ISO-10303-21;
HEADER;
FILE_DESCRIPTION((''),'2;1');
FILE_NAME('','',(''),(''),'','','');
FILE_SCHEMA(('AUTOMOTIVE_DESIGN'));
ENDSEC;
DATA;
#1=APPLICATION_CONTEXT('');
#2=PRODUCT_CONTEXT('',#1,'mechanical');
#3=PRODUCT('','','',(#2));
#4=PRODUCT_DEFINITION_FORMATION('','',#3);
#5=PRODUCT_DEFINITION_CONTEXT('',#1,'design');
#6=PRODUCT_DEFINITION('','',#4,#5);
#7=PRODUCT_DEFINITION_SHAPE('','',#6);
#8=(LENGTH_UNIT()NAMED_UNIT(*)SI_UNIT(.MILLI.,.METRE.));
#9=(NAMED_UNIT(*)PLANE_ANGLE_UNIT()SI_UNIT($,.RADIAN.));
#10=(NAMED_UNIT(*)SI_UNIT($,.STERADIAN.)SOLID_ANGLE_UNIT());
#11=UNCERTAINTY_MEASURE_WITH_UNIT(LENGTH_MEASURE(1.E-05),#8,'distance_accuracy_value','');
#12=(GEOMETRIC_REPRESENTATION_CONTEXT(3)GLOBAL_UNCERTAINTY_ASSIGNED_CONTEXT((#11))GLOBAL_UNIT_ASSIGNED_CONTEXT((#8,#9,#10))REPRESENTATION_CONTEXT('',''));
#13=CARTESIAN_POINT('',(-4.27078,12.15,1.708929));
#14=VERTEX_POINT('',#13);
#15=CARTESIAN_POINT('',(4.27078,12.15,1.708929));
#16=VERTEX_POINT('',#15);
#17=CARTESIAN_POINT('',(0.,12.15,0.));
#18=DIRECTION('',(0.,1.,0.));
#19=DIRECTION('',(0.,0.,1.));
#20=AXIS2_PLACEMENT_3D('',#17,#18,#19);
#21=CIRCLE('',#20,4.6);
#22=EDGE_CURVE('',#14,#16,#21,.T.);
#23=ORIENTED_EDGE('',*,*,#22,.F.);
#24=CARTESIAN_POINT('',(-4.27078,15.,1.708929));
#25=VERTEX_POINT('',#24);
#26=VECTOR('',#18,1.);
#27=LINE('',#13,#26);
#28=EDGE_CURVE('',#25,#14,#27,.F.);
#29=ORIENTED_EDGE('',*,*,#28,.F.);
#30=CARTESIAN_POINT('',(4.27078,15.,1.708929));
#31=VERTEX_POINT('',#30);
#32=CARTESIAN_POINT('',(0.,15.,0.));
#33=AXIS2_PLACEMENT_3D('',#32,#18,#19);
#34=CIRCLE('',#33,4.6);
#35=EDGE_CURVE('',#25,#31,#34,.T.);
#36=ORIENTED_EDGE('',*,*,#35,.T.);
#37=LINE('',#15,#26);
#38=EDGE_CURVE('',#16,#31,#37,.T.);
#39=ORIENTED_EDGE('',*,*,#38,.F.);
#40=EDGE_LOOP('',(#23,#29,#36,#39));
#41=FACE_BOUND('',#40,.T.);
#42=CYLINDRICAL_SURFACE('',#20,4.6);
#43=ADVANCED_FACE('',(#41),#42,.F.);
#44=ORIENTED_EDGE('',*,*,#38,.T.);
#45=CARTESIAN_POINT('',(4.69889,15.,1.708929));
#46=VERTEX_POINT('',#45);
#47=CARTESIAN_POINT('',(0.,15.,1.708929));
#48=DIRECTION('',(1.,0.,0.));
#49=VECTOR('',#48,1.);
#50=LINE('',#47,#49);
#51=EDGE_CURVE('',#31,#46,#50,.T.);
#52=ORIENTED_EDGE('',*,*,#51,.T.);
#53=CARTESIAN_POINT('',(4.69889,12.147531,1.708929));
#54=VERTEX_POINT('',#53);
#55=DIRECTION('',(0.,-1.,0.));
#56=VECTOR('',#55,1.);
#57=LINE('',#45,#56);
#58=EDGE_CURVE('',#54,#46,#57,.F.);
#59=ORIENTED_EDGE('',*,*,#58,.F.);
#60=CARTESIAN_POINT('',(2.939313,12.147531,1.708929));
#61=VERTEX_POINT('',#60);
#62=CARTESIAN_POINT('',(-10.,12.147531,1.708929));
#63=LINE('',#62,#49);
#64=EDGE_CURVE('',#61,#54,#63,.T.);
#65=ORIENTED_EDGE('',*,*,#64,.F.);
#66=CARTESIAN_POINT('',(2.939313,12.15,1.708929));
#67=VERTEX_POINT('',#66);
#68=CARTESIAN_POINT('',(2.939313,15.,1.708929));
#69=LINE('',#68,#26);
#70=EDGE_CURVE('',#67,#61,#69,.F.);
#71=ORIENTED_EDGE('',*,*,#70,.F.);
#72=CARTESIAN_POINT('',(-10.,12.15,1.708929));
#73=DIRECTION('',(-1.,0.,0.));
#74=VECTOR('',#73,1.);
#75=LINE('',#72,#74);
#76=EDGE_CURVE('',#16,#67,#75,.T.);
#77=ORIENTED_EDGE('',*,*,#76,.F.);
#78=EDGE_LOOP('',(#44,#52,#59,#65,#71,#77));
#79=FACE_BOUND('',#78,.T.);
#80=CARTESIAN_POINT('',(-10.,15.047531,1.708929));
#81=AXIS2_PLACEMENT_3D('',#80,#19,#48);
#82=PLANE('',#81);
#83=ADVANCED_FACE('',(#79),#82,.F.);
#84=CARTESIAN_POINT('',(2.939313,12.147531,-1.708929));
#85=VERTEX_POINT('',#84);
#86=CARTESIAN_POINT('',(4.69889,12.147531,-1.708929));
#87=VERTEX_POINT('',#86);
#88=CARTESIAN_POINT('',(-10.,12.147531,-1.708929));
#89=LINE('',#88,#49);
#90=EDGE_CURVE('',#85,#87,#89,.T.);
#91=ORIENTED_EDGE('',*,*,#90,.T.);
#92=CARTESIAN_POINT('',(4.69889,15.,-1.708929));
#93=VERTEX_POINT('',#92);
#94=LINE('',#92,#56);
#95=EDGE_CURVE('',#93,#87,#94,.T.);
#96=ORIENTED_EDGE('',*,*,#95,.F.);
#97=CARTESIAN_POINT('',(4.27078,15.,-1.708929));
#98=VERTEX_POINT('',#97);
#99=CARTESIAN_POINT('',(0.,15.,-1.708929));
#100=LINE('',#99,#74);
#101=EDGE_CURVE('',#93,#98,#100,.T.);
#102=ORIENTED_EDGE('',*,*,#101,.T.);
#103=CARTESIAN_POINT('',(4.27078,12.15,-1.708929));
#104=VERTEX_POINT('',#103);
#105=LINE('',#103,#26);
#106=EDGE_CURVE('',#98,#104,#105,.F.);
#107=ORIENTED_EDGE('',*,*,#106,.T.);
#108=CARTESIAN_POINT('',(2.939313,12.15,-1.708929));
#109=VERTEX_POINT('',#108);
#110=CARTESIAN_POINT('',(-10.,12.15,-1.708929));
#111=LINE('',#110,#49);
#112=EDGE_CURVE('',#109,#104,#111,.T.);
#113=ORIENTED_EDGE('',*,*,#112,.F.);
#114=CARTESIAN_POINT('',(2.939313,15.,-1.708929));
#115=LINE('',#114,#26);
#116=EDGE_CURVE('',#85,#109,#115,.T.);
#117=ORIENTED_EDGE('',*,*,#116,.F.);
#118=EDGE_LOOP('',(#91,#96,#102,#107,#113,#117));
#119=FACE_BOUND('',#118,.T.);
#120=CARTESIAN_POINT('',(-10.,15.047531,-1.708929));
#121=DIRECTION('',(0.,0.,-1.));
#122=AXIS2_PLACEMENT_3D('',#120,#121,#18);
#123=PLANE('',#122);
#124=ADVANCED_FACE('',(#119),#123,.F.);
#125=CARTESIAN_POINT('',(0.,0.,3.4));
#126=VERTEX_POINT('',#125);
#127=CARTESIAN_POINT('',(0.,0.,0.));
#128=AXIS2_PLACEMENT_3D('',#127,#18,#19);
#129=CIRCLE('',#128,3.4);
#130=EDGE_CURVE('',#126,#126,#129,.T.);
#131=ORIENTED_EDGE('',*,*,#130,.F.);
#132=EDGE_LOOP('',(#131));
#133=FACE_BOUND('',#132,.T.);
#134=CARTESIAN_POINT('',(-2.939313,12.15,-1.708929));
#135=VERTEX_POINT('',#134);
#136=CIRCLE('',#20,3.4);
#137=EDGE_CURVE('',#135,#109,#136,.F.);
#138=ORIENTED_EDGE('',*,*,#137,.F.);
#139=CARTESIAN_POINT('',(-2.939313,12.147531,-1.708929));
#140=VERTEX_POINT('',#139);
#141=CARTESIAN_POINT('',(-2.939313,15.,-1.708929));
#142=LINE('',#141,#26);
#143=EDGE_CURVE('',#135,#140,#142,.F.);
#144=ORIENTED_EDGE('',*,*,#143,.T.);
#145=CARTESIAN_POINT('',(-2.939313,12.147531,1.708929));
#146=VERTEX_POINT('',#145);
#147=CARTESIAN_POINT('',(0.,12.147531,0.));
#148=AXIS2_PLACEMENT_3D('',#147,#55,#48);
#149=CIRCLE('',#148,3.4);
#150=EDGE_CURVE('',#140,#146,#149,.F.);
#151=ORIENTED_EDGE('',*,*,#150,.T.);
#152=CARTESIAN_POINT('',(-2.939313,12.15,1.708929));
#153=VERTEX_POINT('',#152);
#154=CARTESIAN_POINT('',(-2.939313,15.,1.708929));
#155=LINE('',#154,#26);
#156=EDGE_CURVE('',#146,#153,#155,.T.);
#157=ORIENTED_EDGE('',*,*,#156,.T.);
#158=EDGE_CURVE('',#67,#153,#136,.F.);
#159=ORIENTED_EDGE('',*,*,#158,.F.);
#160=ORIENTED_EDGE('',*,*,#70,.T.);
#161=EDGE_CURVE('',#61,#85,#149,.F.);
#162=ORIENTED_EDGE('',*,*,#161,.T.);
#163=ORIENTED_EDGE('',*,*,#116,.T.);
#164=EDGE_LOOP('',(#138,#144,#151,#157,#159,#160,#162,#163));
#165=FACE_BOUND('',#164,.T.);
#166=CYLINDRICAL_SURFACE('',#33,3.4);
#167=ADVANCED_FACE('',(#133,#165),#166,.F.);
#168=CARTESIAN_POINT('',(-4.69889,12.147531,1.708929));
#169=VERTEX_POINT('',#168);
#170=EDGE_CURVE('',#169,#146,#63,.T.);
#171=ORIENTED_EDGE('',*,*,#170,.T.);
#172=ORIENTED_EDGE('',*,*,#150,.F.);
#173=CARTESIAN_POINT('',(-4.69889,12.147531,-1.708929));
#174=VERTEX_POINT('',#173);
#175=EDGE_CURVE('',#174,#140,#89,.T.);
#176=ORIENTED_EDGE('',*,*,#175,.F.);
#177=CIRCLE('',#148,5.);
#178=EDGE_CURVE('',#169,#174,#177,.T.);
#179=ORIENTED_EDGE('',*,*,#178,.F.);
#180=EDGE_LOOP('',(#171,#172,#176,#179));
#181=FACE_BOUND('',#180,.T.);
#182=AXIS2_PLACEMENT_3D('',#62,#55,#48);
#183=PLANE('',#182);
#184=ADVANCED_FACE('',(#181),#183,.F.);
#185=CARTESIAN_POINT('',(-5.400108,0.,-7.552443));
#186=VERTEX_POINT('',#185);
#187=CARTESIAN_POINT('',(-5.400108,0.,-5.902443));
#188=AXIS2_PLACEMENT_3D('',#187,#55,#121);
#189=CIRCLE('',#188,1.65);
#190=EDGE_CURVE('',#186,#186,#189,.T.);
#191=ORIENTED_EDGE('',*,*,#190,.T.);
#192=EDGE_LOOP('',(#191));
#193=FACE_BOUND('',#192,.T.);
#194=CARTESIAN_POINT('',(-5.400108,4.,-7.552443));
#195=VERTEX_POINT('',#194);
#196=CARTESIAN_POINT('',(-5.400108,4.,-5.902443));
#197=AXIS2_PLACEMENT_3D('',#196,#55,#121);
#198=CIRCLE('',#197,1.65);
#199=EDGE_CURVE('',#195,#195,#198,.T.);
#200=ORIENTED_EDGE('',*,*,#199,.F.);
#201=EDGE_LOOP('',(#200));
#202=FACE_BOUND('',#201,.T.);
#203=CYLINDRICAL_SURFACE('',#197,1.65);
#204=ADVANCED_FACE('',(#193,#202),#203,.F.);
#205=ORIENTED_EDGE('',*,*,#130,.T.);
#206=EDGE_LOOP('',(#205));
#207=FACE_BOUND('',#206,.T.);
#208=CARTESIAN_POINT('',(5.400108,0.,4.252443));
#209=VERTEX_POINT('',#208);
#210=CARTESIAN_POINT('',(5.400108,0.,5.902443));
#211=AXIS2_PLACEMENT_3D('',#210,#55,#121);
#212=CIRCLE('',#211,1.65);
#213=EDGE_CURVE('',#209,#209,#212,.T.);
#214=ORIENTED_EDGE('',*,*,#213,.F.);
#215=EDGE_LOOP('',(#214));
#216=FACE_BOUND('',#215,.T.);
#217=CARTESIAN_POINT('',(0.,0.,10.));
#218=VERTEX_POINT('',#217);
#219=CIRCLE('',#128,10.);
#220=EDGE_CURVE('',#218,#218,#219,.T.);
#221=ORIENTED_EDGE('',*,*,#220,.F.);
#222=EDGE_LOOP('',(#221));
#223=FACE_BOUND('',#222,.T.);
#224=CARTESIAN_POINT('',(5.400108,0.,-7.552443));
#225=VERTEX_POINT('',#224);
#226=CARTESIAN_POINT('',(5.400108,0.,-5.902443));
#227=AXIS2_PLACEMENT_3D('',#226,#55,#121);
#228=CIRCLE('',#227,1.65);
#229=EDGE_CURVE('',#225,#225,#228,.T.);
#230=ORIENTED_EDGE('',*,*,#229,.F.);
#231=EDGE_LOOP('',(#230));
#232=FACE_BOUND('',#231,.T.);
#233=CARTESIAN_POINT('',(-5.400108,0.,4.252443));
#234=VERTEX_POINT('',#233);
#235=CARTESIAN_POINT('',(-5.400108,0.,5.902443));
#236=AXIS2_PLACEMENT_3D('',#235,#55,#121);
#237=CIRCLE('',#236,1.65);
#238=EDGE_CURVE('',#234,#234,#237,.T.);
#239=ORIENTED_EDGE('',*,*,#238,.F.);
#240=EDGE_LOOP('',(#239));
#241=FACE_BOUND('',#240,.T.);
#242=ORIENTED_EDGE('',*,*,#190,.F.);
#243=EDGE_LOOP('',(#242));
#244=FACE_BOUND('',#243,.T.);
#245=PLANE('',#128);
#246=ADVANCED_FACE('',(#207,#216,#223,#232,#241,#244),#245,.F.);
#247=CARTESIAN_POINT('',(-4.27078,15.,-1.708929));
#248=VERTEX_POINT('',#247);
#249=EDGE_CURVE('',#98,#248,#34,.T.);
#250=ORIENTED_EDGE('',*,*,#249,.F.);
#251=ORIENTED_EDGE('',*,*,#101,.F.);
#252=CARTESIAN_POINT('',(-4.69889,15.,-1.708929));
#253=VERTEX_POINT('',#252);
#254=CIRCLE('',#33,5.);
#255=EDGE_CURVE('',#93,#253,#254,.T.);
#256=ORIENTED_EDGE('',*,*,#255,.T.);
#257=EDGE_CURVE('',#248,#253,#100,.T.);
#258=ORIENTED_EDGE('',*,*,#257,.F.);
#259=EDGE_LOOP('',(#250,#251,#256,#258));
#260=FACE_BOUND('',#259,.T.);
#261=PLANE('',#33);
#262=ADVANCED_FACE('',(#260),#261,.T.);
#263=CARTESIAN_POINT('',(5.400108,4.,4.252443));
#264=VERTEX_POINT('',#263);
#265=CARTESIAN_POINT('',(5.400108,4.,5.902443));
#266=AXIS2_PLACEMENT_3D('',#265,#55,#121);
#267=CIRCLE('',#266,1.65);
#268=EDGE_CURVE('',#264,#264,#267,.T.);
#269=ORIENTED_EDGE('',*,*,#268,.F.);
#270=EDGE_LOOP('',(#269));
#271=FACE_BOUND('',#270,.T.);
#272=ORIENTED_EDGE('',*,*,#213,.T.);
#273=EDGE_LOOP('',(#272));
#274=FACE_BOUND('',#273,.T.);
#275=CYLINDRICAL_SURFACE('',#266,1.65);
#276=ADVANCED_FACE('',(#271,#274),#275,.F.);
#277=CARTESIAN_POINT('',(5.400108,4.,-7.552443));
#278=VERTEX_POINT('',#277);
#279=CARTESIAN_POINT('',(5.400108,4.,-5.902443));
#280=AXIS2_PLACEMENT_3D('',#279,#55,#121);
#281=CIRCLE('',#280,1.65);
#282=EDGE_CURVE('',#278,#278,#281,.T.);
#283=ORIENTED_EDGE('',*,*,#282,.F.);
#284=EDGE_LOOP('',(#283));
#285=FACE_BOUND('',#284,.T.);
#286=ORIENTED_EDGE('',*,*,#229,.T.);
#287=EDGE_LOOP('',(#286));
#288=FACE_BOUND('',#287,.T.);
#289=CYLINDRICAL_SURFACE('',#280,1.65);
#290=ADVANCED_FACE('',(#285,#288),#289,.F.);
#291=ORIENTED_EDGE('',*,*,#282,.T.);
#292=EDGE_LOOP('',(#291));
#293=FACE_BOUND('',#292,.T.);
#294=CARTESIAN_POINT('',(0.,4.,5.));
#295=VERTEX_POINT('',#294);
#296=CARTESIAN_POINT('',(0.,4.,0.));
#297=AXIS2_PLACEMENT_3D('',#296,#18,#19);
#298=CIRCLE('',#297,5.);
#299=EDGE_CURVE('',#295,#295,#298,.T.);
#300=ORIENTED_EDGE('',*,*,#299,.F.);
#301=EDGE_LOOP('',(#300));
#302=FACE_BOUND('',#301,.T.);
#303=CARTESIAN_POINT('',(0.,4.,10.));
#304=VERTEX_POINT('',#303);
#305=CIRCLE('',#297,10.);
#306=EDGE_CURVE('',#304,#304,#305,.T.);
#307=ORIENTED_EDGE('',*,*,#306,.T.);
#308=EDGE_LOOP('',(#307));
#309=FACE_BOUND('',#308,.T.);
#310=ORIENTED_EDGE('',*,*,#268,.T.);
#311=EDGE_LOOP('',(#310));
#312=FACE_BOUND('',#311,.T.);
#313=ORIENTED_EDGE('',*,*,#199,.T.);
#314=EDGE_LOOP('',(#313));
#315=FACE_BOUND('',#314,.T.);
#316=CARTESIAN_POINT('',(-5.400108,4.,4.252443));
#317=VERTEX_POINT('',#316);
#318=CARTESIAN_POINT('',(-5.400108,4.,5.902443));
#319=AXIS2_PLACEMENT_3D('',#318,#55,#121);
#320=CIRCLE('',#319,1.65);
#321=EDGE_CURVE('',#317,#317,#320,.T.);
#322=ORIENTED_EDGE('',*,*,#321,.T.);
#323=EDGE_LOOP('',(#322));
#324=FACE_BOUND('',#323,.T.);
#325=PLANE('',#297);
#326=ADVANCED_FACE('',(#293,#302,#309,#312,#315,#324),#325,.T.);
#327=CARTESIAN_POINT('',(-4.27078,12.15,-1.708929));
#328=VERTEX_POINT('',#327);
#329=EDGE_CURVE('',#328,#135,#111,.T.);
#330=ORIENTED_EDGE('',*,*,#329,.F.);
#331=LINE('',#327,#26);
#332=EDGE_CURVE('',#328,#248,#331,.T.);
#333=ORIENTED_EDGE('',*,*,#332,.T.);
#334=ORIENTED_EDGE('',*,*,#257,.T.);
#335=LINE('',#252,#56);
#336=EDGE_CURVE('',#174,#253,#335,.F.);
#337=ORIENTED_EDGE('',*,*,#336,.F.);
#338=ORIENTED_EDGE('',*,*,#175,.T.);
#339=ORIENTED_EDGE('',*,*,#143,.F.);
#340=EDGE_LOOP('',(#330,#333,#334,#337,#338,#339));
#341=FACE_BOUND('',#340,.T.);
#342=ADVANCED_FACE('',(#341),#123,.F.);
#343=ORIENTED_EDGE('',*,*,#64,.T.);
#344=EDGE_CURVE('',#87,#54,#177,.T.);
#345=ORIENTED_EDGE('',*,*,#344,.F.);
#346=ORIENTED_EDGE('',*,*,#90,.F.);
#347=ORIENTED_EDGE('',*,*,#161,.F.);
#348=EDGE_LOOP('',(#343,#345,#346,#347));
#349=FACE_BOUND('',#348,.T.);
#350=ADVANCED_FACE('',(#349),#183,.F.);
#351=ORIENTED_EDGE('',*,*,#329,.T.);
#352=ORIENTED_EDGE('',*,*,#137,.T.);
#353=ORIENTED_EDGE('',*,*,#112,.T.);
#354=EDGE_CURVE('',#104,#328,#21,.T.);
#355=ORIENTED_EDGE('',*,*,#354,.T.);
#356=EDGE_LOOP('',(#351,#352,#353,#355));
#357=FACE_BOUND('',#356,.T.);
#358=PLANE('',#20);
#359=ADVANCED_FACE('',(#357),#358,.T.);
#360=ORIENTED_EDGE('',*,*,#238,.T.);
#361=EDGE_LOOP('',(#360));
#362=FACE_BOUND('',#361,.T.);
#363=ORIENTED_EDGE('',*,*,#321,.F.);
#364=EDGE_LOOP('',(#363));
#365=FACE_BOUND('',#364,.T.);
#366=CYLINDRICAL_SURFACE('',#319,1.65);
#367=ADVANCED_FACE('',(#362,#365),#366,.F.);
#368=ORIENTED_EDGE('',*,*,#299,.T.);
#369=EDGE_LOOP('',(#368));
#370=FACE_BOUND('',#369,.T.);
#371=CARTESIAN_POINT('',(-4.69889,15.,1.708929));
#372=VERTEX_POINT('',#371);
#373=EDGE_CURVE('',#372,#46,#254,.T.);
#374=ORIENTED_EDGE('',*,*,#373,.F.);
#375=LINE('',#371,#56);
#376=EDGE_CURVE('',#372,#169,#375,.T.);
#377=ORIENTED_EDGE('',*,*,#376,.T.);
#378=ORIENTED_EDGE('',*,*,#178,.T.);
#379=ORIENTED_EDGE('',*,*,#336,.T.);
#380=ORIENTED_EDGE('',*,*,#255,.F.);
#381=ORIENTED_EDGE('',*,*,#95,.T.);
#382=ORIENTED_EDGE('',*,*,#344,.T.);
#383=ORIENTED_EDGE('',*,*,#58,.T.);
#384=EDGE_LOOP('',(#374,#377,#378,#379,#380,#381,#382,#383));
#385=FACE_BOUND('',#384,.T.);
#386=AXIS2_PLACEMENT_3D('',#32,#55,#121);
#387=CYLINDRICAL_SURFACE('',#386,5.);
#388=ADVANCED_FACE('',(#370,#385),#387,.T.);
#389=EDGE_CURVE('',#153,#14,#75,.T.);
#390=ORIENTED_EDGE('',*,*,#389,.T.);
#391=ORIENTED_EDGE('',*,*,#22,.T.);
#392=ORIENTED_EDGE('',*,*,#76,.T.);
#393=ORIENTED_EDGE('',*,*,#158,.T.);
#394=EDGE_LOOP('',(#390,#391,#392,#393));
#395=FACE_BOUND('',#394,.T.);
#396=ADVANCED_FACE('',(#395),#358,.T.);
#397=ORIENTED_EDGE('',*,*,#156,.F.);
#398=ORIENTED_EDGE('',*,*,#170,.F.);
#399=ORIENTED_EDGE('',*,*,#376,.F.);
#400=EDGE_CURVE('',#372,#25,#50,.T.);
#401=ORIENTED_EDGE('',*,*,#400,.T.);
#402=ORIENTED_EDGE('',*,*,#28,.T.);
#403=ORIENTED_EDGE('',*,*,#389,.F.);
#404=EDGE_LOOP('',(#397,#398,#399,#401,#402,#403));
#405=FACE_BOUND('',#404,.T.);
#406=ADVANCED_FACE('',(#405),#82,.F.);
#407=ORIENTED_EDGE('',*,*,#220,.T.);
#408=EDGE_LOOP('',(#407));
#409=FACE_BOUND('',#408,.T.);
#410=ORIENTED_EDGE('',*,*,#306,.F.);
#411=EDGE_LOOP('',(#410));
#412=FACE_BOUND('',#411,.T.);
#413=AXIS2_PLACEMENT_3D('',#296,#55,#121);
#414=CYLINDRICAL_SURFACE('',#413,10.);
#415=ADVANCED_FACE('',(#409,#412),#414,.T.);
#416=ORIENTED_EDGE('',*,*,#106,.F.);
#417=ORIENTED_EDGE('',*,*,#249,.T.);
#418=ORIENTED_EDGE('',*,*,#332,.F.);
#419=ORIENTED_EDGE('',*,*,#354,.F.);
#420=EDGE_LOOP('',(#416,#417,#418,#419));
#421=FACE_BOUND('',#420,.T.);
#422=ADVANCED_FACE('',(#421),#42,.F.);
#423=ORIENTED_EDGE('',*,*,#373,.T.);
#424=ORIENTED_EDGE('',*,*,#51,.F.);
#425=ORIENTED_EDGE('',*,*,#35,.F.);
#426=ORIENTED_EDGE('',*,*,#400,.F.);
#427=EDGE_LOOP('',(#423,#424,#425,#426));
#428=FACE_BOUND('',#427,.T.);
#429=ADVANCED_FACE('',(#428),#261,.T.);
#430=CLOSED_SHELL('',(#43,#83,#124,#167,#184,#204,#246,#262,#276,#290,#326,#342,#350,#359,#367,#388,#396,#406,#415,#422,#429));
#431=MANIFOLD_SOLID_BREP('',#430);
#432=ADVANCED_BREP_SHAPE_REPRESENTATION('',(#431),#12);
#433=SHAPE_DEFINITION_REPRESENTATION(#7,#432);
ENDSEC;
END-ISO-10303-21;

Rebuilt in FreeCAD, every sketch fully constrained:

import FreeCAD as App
import Part
import Sketcher
Q = App.Units.Quantity


def add_polygon(sketch, points):
    """Adds a closed chain of lines whose ends are joined by coincident constraints."""
    first, n = sketch.GeometryCount, len(points)
    for a, b in zip(points, points[1:] + points[:1]):
        sketch.addGeometry(Part.LineSegment(App.Vector(*a, 0), App.Vector(*b, 0)), False)
    for i in range(n):
        sketch.addConstraint(Sketcher.Constraint("Coincident", first + i, 2, first + (i + 1) % n, 1))

doc = App.newDocument("Part")
body = doc.addObject("PartDesign::Body", "Body")

sketch1 = body.newObject("Sketcher::SketchObject", "Sketch")
sketch1.AttachmentSupport = (doc.getObject("XZ_Plane"), [""])
sketch1.MapMode = "FlatFace"
sketch1.addGeometry(Part.Circle(App.Vector(0, 0, 0), App.Vector(0, 0, 1), 10), False)
sketch1.addConstraint([
    Sketcher.Constraint("Coincident", 0, 3, -1, 1),
    Sketcher.Constraint("Diameter", 0, Q("20 mm")),
])
pad1 = body.newObject("PartDesign::Pad", "Pad")
pad1.Profile = sketch1
pad1.Length = 4
pad1.Reversed = True

sketch2 = body.newObject("Sketcher::SketchObject", "Sketch001")
sketch2.AttachmentSupport = (doc.getObject("XZ_Plane"), [""])
sketch2.MapMode = "FlatFace"
sketch2.addGeometry([
    Part.Circle(App.Vector(-5.400108, 5.902443, 0), App.Vector(0, 0, 1), 1.65),
    Part.Circle(App.Vector(5.400108, 5.902443, 0), App.Vector(0, 0, 1), 1.65),
    Part.Circle(App.Vector(5.400108, -5.902443, 0), App.Vector(0, 0, 1), 1.65),
    Part.Circle(App.Vector(-5.400108, -5.902443, 0), App.Vector(0, 0, 1), 1.65),
], False)
sketch2.addConstraint([
    Sketcher.Constraint("Equal", 0, 1),
    Sketcher.Constraint("Equal", 1, 2),
    Sketcher.Constraint("Equal", 2, 3),
    Sketcher.Constraint("Symmetric", 0, 3, 2, 3, -1, 1),
    Sketcher.Constraint("Symmetric", 1, 3, 3, 3, -1, 1),
    Sketcher.Constraint("Symmetric", 0, 3, 1, 3, -2),
    Sketcher.Constraint("Diameter", 0, Q("3.3 mm")),
    Sketcher.Constraint("DistanceX", 0, 3, -1, 1, Q("5.400108 mm")),
    Sketcher.Constraint("DistanceY", -1, 1, 0, 3, Q("5.902443 mm")),
])
pocket1 = body.newObject("PartDesign::Pocket", "Pocket")
pocket1.Profile = sketch2
pocket1.Length = 4

sketch3 = body.newObject("Sketcher::SketchObject", "Sketch002")
sketch3.AttachmentSupport = (doc.getObject("XZ_Plane"), [""])
sketch3.MapMode = "FlatFace"
sketch3.AttachmentOffset = App.Placement(App.Vector(0, 0, -4), App.Rotation())
sketch3.addGeometry(Part.Circle(App.Vector(0, 0, 0), App.Vector(0, 0, 1), 5), False)
sketch3.addConstraint([
    Sketcher.Constraint("Coincident", 0, 3, -1, 1),
    Sketcher.Constraint("Diameter", 0, Q("10 mm")),
])
pad2 = body.newObject("PartDesign::Pad", "Pad001")
pad2.Profile = sketch3
pad2.Length = 11
pad2.Reversed = True

sketch4 = body.newObject("Sketcher::SketchObject", "Sketch003")
sketch4.AttachmentSupport = (doc.getObject("XZ_Plane"), [""])
sketch4.MapMode = "FlatFace"
sketch4.addGeometry(Part.Circle(App.Vector(0, 0, 0), App.Vector(0, 0, 1), 3.4), False)
sketch4.addConstraint([
    Sketcher.Constraint("Coincident", 0, 3, -1, 1),
    Sketcher.Constraint("Diameter", 0, Q("6.8 mm")),
])
doc.recompute()
hole = body.newObject("PartDesign::Hole", "Hole")
hole.Profile = sketch4
hole.ThreadType = "None"
hole.Diameter = 6.8
hole.DepthType = "ThroughAll"

sketch5 = body.newObject("Sketcher::SketchObject", "Sketch004")
sketch5.AttachmentSupport = (doc.getObject("XZ_Plane"), [""])
sketch5.MapMode = "FlatFace"
sketch5.AttachmentOffset = App.Placement(App.Vector(0, 0, -15), App.Rotation())
sketch5.addGeometry(Part.Circle(App.Vector(0, 0, 0), App.Vector(0, 0, 1), 3.4), False)
sketch5.addConstraint([
    Sketcher.Constraint("Coincident", 0, 3, -1, 1),
    Sketcher.Constraint("Diameter", 0, Q("6.8 mm")),
])
doc.recompute()
hole2 = body.newObject("PartDesign::Hole", "Hole001")
hole2.Profile = sketch5
hole2.ThreadType = "None"
hole2.Diameter = 6.8
hole2.DepthType = "ThroughAll"
hole2.Reversed = True

sketch6 = body.newObject("Sketcher::SketchObject", "Sketch005")
sketch6.AttachmentSupport = (doc.getObject("YZ_Plane"), [""])
sketch6.MapMode = "FlatFace"
sketch6.AttachmentOffset = App.Placement(App.Vector(0, 0, 4.997964), App.Rotation())
add_polygon(sketch6, [(15.047531, 1.708929), (12.147531, 1.708929), (12.147531, -1.708929), (15.047531, -1.708929)])
sketch6.addConstraint([
    Sketcher.Constraint("Horizontal", 0),
    Sketcher.Constraint("Vertical", 1),
    Sketcher.Constraint("Horizontal", 2),
    Sketcher.Constraint("Vertical", 3),
    Sketcher.Constraint("DistanceX", 0, 2, 0, 1, Q("2.9 mm")),
    Sketcher.Constraint("DistanceY", 1, 2, 1, 1, Q("3.417857 mm")),
    Sketcher.Constraint("DistanceX", -1, 1, 0, 2, Q("12.147531 mm")),
    Sketcher.Constraint("DistanceY", -1, 1, 0, 2, Q("1.708929 mm")),
])
pocket2 = body.newObject("PartDesign::Pocket", "Pocket001")
pocket2.Profile = sketch6
pocket2.Type = "ThroughAll"
pocket2.Midplane = True

sketch7 = body.newObject("Sketcher::SketchObject", "Sketch006")
sketch7.AttachmentSupport = (doc.getObject("XZ_Plane"), [""])
sketch7.MapMode = "FlatFace"
sketch7.AttachmentOffset = App.Placement(App.Vector(0, 0, -15), App.Rotation())
sketch7.addGeometry(Part.Circle(App.Vector(0, 0, 0), App.Vector(0, 0, 1), 4.6), False)
sketch7.addConstraint([
    Sketcher.Constraint("Coincident", 0, 3, -1, 1),
    Sketcher.Constraint("Diameter", 0, Q("9.2 mm")),
])
pocket3 = body.newObject("PartDesign::Pocket", "Pocket002")
pocket3.Profile = sketch7
pocket3.Length = 2.85
pocket3.Reversed = True

doc.recompute()
